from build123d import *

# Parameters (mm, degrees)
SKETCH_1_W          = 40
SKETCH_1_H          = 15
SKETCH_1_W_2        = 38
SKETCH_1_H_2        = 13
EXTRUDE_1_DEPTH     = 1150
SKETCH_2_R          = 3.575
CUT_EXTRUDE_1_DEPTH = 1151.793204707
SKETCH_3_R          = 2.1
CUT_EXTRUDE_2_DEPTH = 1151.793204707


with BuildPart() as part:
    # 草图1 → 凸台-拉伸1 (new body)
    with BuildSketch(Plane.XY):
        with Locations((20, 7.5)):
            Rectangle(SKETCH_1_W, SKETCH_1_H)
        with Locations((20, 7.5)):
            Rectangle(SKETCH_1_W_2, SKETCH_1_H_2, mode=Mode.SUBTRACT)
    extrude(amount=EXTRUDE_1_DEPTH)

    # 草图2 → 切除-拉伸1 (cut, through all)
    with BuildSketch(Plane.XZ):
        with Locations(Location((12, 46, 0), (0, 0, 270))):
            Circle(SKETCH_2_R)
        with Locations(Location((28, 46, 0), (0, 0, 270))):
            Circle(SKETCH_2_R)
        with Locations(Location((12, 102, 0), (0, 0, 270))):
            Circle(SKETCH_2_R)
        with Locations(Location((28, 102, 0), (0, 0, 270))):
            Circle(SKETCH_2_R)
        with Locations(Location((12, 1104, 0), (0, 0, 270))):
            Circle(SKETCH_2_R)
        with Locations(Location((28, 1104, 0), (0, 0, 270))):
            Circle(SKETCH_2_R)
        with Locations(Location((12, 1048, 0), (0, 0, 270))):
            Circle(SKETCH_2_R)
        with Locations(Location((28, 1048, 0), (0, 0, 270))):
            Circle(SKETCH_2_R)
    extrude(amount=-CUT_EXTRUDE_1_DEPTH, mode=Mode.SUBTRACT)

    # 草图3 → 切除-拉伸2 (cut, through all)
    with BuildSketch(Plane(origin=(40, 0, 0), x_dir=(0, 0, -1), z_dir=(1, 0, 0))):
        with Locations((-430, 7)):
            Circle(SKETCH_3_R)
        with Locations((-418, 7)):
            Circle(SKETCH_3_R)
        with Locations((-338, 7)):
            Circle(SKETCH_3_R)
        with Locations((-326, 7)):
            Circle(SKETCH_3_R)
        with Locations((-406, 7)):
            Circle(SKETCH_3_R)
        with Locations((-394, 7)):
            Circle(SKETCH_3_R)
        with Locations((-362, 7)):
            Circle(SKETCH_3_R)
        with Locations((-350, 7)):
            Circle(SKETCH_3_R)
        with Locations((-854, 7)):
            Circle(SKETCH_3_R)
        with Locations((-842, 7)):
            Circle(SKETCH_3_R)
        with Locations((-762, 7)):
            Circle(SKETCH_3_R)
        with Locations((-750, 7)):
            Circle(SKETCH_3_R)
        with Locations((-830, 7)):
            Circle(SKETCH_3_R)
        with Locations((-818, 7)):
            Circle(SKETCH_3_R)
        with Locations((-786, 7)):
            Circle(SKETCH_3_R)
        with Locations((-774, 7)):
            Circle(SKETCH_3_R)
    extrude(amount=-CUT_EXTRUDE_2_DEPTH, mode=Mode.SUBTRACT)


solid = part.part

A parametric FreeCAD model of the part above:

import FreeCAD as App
import Part
import Sketcher

doc = App.newDocument("Part")
params = doc.addObject("Spreadsheet::Sheet", "Params")
for row, (alias, value) in enumerate([
    ("sketch1_width", "40 mm"),
    ("sketch1_width2", "38 mm"),
    ("sketch1_height", "15 mm"),
    ("sketch1_height2", "13 mm"),
    ("pad1_length", "1150 mm"),
    ("sketch2_diameter", "7.15 mm"),
    ("sketch3_diameter", "4.2 mm"),
], start=1):
    params.set(f"A{row}", alias)
    params.set(f"B{row}", "=" + value)
    params.setAlias(f"B{row}", alias)

body = doc.addObject("PartDesign::Body", "Body")

# Sketch on XY plane
sketch1 = body.newObject("Sketcher::SketchObject", "Sketch")
sketch1.AttachmentSupport = (doc.getObject("XY_Plane"), [""])
sketch1.MapMode = "FlatFace"
sketch1.addGeometry(Part.LineSegment(App.Vector(0, 15, 0), App.Vector(0, 0, 0)), False)
sketch1.addGeometry(Part.LineSegment(App.Vector(0, 0, 0), App.Vector(40, 0, 0)), False)
sketch1.addGeometry(Part.LineSegment(App.Vector(40, 0, 0), App.Vector(40, 15, 0)), False)
sketch1.addGeometry(Part.LineSegment(App.Vector(40, 15, 0), App.Vector(0, 15, 0)), False)
sketch1.addGeometry(Part.LineSegment(App.Vector(39, 1, 0), App.Vector(1, 1, 0)), False)
sketch1.addGeometry(Part.LineSegment(App.Vector(1, 1, 0), App.Vector(1, 14, 0)), False)
sketch1.addGeometry(Part.LineSegment(App.Vector(1, 14, 0), App.Vector(39, 14, 0)), False)
sketch1.addGeometry(Part.LineSegment(App.Vector(39, 14, 0), App.Vector(39, 1, 0)), False)
sketch1.addConstraint(Sketcher.Constraint("Coincident", 0, 2, 1, 1))
sketch1.addConstraint(Sketcher.Constraint("Coincident", 1, 2, 2, 1))
sketch1.addConstraint(Sketcher.Constraint("Coincident", 2, 2, 3, 1))
sketch1.addConstraint(Sketcher.Constraint("Coincident", 3, 2, 0, 1))
sketch1.addConstraint(Sketcher.Constraint("Coincident", 4, 2, 5, 1))
sketch1.addConstraint(Sketcher.Constraint("Coincident", 5, 2, 6, 1))
sketch1.addConstraint(Sketcher.Constraint("Coincident", 6, 2, 7, 1))
sketch1.addConstraint(Sketcher.Constraint("Coincident", 7, 2, 4, 1))
sketch1.addConstraint(Sketcher.Constraint("Vertical", 0))
sketch1.addConstraint(Sketcher.Constraint("Horizontal", 1))
sketch1.addConstraint(Sketcher.Constraint("Vertical", 2))
sketch1.addConstraint(Sketcher.Constraint("Horizontal", 3))
sketch1.addConstraint(Sketcher.Constraint("Horizontal", 4))
sketch1.addConstraint(Sketcher.Constraint("Vertical", 5))
sketch1.addConstraint(Sketcher.Constraint("Horizontal", 6))
sketch1.addConstraint(Sketcher.Constraint("Vertical", 7))
sketch1.addConstraint(Sketcher.Constraint("Coincident", 0, 2, -1, 1))
sketch1.addConstraint(Sketcher.Constraint("DistanceX", 1, 1, 1, 2, 40.0))
sketch1.addConstraint(Sketcher.Constraint("DistanceX", 4, 2, 4, 1, 38.0))
sketch1.addConstraint(Sketcher.Constraint("DistanceY", 0, 2, 0, 1, 15.0))
sketch1.addConstraint(Sketcher.Constraint("DistanceY", 5, 1, 5, 2, 13.0))
sketch1.addConstraint(Sketcher.Constraint("DistanceX", -1, 1, 4, 2, 1.0))
sketch1.addConstraint(Sketcher.Constraint("DistanceY", -1, 1, 4, 2, 1.0))
sketch1.setExpression("Constraints[17]", "Params.sketch1_width")
sketch1.setExpression("Constraints[18]", "Params.sketch1_width2")
sketch1.setExpression("Constraints[19]", "Params.sketch1_height")
sketch1.setExpression("Constraints[20]", "Params.sketch1_height2")
pad1 = body.newObject("PartDesign::Pad", "Pad")
pad1.Profile = sketch1
pad1.setExpression("Length", "Params.pad1_length")

# Sketch on XZ plane
sketch2 = body.newObject("Sketcher::SketchObject", "Sketch001")
sketch2.AttachmentSupport = (doc.getObject("XZ_Plane"), [""])
sketch2.MapMode = "FlatFace"
sketch2.addGeometry(Part.Circle(App.Vector(12, 46, 0), App.Vector(0, 0, 1), 3.6), False)
sketch2.addGeometry(Part.Circle(App.Vector(28, 46, 0), App.Vector(0, 0, 1), 3.6), False)
sketch2.addGeometry(Part.Circle(App.Vector(12, 102, 0), App.Vector(0, 0, 1), 3.6), False)
sketch2.addGeometry(Part.Circle(App.Vector(28, 102, 0), App.Vector(0, 0, 1), 3.6), False)
sketch2.addGeometry(Part.Circle(App.Vector(12, 1104, 0), App.Vector(0, 0, 1), 3.6), False)
sketch2.addGeometry(Part.Circle(App.Vector(28, 1104, 0), App.Vector(0, 0, 1), 3.6), False)
sketch2.addGeometry(Part.Circle(App.Vector(12, 1048, 0), App.Vector(0, 0, 1), 3.6), False)
sketch2.addGeometry(Part.Circle(App.Vector(28, 1048, 0), App.Vector(0, 0, 1), 3.6), False)
sketch2.addConstraint(Sketcher.Constraint("Equal", 0, 1))
sketch2.addConstraint(Sketcher.Constraint("Equal", 1, 2))
sketch2.addConstraint(Sketcher.Constraint("Equal", 2, 3))
sketch2.addConstraint(Sketcher.Constraint("Equal", 3, 4))
sketch2.addConstraint(Sketcher.Constraint("Equal", 4, 5))
sketch2.addConstraint(Sketcher.Constraint("Equal", 5, 6))
sketch2.addConstraint(Sketcher.Constraint("Equal", 6, 7))
sketch2.addConstraint(Sketcher.Constraint("Horizontal", 0, 3, 1, 3))
sketch2.addConstraint(Sketcher.Constraint("Horizontal", 2, 3, 3, 3))
sketch2.addConstraint(Sketcher.Constraint("Horizontal", 4, 3, 5, 3))
sketch2.addConstraint(Sketcher.Constraint("Horizontal", 6, 3, 7, 3))
sketch2.addConstraint(Sketcher.Constraint("Vertical", 0, 3, 2, 3))
sketch2.addConstraint(Sketcher.Constraint("Vertical", 1, 3, 3, 3))
sketch2.addConstraint(Sketcher.Constraint("Vertical", 2, 3, 4, 3))
sketch2.addConstraint(Sketcher.Constraint("Vertical", 3, 3, 5, 3))
sketch2.addConstraint(Sketcher.Constraint("Vertical", 4, 3, 6, 3))
sketch2.addConstraint(Sketcher.Constraint("Vertical", 5, 3, 7, 3))
sketch2.addConstraint(Sketcher.Constraint("Diameter", 0, 7.15))
sketch2.addConstraint(Sketcher.Constraint("DistanceX", -1, 1, 0, 3, 12.0))
sketch2.addConstraint(Sketcher.Constraint("DistanceY", -1, 1, 0, 3, 46.0))
sketch2.addConstraint(Sketcher.Constraint("DistanceX", -1, 1, 1, 3, 28.0))
sketch2.addConstraint(Sketcher.Constraint("DistanceY", -1, 1, 2, 3, 102.0))
sketch2.addConstraint(Sketcher.Constraint("DistanceY", -1, 1, 4, 3, 1104.0))
sketch2.addConstraint(Sketcher.Constraint("DistanceY", -1, 1, 6, 3, 1048.0))
sketch2.setExpression("Constraints[17]", "Params.sketch2_diameter")
pocket1 = body.newObject("PartDesign::Pocket", "Pocket")
pocket1.Profile = sketch2
pocket1.Type = "ThroughAll"

# Sketch on YZ plane
sketch3 = body.newObject("Sketcher::SketchObject", "Sketch002")
sketch3.AttachmentSupport = (doc.getObject("YZ_Plane"), [""])
sketch3.MapMode = "FlatFace"
sketch3.AttachmentOffset = App.Placement(App.Vector(0, 0, 40), App.Rotation())
sketch3.addGeometry(Part.Circle(App.Vector(7, 430, 0), App.Vector(0, 0, 1), 2.1), False)
sketch3.addGeometry(Part.Circle(App.Vector(7, 418, 0), App.Vector(0, 0, 1), 2.1), False)
sketch3.addGeometry(Part.Circle(App.Vector(7, 338, 0), App.Vector(0, 0, 1), 2.1), False)
sketch3.addGeometry(Part.Circle(App.Vector(7, 326, 0), App.Vector(0, 0, 1), 2.1), False)
sketch3.addGeometry(Part.Circle(App.Vector(7, 406, 0), App.Vector(0, 0, 1), 2.1), False)
sketch3.addGeometry(Part.Circle(App.Vector(7, 394, 0), App.Vector(0, 0, 1), 2.1), False)
sketch3.addGeometry(Part.Circle(App.Vector(7, 362, 0), App.Vector(0, 0, 1), 2.1), False)
sketch3.addGeometry(Part.Circle(App.Vector(7, 350, 0), App.Vector(0, 0, 1), 2.1), False)
sketch3.addGeometry(Part.Circle(App.Vector(7, 854, 0), App.Vector(0, 0, 1), 2.1), False)
sketch3.addGeometry(Part.Circle(App.Vector(7, 842, 0), App.Vector(0, 0, 1), 2.1), False)
sketch3.addGeometry(Part.Circle(App.Vector(7, 762, 0), App.Vector(0, 0, 1), 2.1), False)
sketch3.addGeometry(Part.Circle(App.Vector(7, 750, 0), App.Vector(0, 0, 1), 2.1), False)
sketch3.addGeometry(Part.Circle(App.Vector(7, 830, 0), App.Vector(0, 0, 1), 2.1), False)
sketch3.addGeometry(Part.Circle(App.Vector(7, 818, 0), App.Vector(0, 0, 1), 2.1), False)
sketch3.addGeometry(Part.Circle(App.Vector(7, 786, 0), App.Vector(0, 0, 1), 2.1), False)
sketch3.addGeometry(Part.Circle(App.Vector(7, 774, 0), App.Vector(0, 0, 1), 2.1), False)
sketch3.addConstraint(Sketcher.Constraint("Equal", 0, 1))
sketch3.addConstraint(Sketcher.Constraint("Equal", 1, 2))
sketch3.addConstraint(Sketcher.Constraint("Equal", 2, 3))
sketch3.addConstraint(Sketcher.Constraint("Equal", 3, 4))
sketch3.addConstraint(Sketcher.Constraint("Equal", 4, 5))
sketch3.addConstraint(Sketcher.Constraint("Equal", 5, 6))
sketch3.addConstraint(Sketcher.Constraint("Equal", 6, 7))
sketch3.addConstraint(Sketcher.Constraint("Equal", 7, 8))
sketch3.addConstraint(Sketcher.Constraint("Equal", 8, 9))
sketch3.addConstraint(Sketcher.Constraint("Equal", 9, 10))
sketch3.addConstraint(Sketcher.Constraint("Equal", 10, 11))
sketch3.addConstraint(Sketcher.Constraint("Equal", 11, 12))
sketch3.addConstraint(Sketcher.Constraint("Equal", 12, 13))
sketch3.addConstraint(Sketcher.Constraint("Equal", 13, 14))
sketch3.addConstraint(Sketcher.Constraint("Equal", 14, 15))
sketch3.addConstraint(Sketcher.Constraint("Vertical", 0, 3, 1, 3))
sketch3.addConstraint(Sketcher.Constraint("Vertical", 1, 3, 2, 3))
sketch3.addConstraint(Sketcher.Constraint("Vertical", 2, 3, 3, 3))
sketch3.addConstraint(Sketcher.Constraint("Vertical", 3, 3, 4, 3))
sketch3.addConstraint(Sketcher.Constraint("Vertical", 4, 3, 5, 3))
sketch3.addConstraint(Sketcher.Constraint("Vertical", 5, 3, 6, 3))
sketch3.addConstraint(Sketcher.Constraint("Vertical", 6, 3, 7, 3))
sketch3.addConstraint(Sketcher.Constraint("Vertical", 7, 3, 8, 3))
sketch3.addConstraint(Sketcher.Constraint("Vertical", 8, 3, 9, 3))
sketch3.addConstraint(Sketcher.Constraint("Vertical", 9, 3, 10, 3))
sketch3.addConstraint(Sketcher.Constraint("Vertical", 10, 3, 11, 3))
sketch3.addConstraint(Sketcher.Constraint("Vertical", 11, 3, 12, 3))
sketch3.addConstraint(Sketcher.Constraint("Vertical", 12, 3, 13, 3))
sketch3.addConstraint(Sketcher.Constraint("Vertical", 13, 3, 14, 3))
sketch3.addConstraint(Sketcher.Constraint("Vertical", 14, 3, 15, 3))
sketch3.addConstraint(Sketcher.Constraint("Diameter", 0, 4.2))
sketch3.addConstraint(Sketcher.Constraint("DistanceX", -1, 1, 0, 3, 7.0))
sketch3.addConstraint(Sketcher.Constraint("DistanceY", -1, 1, 0, 3, 430.0))
sketch3.addConstraint(Sketcher.Constraint("DistanceY", -1, 1, 1, 3, 418.0))
sketch3.addConstraint(Sketcher.Constraint("DistanceY", -1, 1, 2, 3, 338.0))
sketch3.addConstraint(Sketcher.Constraint("DistanceY", -1, 1, 3, 3, 326.0))
sketch3.addConstraint(Sketcher.Constraint("DistanceY", -1, 1, 4, 3, 406.0))
sketch3.addConstraint(Sketcher.Constraint("DistanceY", -1, 1, 5, 3, 394.0))
sketch3.addConstraint(Sketcher.Constraint("DistanceY", -1, 1, 6, 3, 362.0))
sketch3.addConstraint(Sketcher.Constraint("DistanceY", -1, 1, 7, 3, 350.0))
sketch3.addConstraint(Sketcher.Constraint("DistanceY", -1, 1, 8, 3, 854.0))
sketch3.addConstraint(Sketcher.Constraint("DistanceY", -1, 1, 9, 3, 842.0))
sketch3.addConstraint(Sketcher.Constraint("DistanceY", -1, 1, 10, 3, 762.0))
sketch3.addConstraint(Sketcher.Constraint("DistanceY", -1, 1, 11, 3, 750.0))
sketch3.addConstraint(Sketcher.Constraint("DistanceY", -1, 1, 12, 3, 830.0))
sketch3.addConstraint(Sketcher.Constraint("DistanceY", -1, 1, 13, 3, 818.0))
sketch3.addConstraint(Sketcher.Constraint("DistanceY", -1, 1, 14, 3, 786.0))
sketch3.addConstraint(Sketcher.Constraint("DistanceY", -1, 1, 15, 3, 774.0))
sketch3.setExpression("Constraints[30]", "Params.sketch3_diameter")
pocket2 = body.newObject("PartDesign::Pocket", "Pocket001")
pocket2.Profile = sketch3
pocket2.Type = "ThroughAll"

doc.recompute()
